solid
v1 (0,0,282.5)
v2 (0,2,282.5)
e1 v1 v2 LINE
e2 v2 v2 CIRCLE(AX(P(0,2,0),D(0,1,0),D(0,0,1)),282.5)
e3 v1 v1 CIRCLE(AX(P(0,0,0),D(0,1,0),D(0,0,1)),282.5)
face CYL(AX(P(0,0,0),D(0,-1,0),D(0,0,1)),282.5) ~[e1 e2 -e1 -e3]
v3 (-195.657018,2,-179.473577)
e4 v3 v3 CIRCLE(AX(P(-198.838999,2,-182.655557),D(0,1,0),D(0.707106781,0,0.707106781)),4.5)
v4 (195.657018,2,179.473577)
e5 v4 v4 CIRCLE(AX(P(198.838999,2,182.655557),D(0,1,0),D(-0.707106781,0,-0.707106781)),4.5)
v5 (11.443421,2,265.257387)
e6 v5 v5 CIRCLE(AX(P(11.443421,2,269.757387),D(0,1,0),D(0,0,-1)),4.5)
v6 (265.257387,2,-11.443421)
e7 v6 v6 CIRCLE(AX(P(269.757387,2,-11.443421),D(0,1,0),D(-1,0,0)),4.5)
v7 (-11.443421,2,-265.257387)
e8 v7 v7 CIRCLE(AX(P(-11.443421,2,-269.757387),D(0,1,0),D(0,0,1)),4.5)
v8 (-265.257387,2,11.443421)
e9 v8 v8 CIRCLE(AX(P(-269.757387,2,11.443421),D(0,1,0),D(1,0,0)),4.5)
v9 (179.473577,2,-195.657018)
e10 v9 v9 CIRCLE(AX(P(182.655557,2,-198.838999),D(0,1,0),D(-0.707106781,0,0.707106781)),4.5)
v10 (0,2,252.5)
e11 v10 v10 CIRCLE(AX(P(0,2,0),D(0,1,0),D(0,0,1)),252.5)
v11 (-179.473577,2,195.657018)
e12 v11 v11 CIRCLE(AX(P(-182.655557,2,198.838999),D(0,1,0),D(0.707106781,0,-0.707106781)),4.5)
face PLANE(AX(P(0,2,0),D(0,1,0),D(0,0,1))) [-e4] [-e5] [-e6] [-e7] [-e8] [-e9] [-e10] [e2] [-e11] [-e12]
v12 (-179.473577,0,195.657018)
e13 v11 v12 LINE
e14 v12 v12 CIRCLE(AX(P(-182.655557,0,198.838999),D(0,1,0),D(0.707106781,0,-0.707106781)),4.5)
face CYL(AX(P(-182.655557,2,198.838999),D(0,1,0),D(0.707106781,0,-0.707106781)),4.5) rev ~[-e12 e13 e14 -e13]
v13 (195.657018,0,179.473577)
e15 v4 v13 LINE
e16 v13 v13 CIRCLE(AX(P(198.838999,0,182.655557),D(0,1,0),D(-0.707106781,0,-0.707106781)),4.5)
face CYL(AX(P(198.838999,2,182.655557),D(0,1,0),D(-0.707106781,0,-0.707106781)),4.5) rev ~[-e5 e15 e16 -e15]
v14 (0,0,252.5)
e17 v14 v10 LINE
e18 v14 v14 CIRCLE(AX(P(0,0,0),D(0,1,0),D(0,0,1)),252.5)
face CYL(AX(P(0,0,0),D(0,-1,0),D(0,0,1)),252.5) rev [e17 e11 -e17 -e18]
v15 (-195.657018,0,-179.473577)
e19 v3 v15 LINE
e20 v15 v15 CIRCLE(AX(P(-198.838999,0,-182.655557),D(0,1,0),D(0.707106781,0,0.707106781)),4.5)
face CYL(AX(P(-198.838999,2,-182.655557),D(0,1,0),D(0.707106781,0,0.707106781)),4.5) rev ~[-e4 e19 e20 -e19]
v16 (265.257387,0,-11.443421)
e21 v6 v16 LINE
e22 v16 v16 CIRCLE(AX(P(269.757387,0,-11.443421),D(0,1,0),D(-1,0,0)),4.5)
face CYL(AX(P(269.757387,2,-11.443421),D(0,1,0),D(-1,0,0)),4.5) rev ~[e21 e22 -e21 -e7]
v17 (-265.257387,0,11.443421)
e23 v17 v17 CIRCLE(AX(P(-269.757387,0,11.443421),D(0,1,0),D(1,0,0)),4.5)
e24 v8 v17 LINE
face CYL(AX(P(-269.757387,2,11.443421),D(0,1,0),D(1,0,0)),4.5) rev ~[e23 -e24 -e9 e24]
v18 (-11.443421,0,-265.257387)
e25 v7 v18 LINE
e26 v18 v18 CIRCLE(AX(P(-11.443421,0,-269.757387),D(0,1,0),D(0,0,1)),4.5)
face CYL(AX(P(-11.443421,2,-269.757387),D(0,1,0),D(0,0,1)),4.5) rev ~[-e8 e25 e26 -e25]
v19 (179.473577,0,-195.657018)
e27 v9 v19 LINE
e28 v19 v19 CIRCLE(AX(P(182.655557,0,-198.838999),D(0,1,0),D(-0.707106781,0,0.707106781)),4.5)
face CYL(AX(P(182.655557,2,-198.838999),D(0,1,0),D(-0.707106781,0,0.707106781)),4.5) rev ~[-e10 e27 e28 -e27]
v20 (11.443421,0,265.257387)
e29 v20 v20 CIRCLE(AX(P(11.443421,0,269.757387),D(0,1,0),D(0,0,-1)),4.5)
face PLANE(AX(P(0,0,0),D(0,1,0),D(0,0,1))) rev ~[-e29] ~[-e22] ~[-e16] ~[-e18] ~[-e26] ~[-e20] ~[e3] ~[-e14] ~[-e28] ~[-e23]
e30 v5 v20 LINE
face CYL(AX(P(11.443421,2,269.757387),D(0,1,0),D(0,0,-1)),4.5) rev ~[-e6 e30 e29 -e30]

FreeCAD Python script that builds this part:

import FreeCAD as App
import Part
import Sketcher
from FreeCAD import Vector
Q = App.Units.Quantity

doc = App.newDocument("Part")
body = doc.addObject("PartDesign::Body", "Body")

# Sketch on XZ plane
sketch1 = doc.addObject("Sketcher::SketchObject", "Sketch")
body.addObject(sketch1)
sketch1.AttachmentSupport = (doc.XZ_Plane, [""])
sketch1.MapMode = "FlatFace"
sketch1.addGeometry([
    Part.Circle(Vector(0, 0, 0), Vector(0, 0, 1), 282.5),
    Part.Circle(Vector(0, 0, 0), Vector(0, 0, 1), 252.5),
], False)
sketch1.addConstraint([
    Sketcher.Constraint("Coincident", 0, 3, -1, 1),
    Sketcher.Constraint("Coincident", 1, 3, -1, 1),
    Sketcher.Constraint("Diameter", 0, Q("565 mm")),
    Sketcher.Constraint("Diameter", 1, Q("505 mm")),
])
pad1 = doc.addObject("PartDesign::Pad", "Pad")
body.addObject(pad1)
pad1.Profile = sketch1
pad1.Length = 2
pad1.Reversed = True

# Sketch on XZ plane
sketch2 = doc.addObject("Sketcher::SketchObject", "Sketch001")
body.addObject(sketch2)
sketch2.AttachmentSupport = (doc.XZ_Plane, [""])
sketch2.MapMode = "FlatFace"
sketch2.AttachmentOffset = App.Placement(Vector(0, 0, -2), App.Rotation())
sketch2.addGeometry(Part.Circle(Vector(-11.443421, -269.757387, 0), Vector(0, 0, 1), 4.5), False)
sketch2.addConstraint([
    Sketcher.Constraint("Diameter", 0, Q("9 mm")),
    Sketcher.Constraint("DistanceX", 0, 3, -1, 1, Q("11.443421 mm")),
    Sketcher.Constraint("DistanceY", 0, 3, -1, 1, Q("269.757387 mm")),
])
pocket1 = doc.addObject("PartDesign::Pocket", "Pocket")
body.addObject(pocket1)
pocket1.Profile = sketch2
pocket1.Length = 5
pocket1.Reversed = True
doc.recompute()

polarpattern = doc.addObject("PartDesign::PolarPattern", "PolarPattern")
body.addObject(polarpattern)
polarpattern.Originals = [pocket1]
polarpattern.Axis = (doc.Y_Axis, [""])
polarpattern.Angle = 360
polarpattern.Occurrences = 8
body.Tip = polarpattern

doc.recompute()
